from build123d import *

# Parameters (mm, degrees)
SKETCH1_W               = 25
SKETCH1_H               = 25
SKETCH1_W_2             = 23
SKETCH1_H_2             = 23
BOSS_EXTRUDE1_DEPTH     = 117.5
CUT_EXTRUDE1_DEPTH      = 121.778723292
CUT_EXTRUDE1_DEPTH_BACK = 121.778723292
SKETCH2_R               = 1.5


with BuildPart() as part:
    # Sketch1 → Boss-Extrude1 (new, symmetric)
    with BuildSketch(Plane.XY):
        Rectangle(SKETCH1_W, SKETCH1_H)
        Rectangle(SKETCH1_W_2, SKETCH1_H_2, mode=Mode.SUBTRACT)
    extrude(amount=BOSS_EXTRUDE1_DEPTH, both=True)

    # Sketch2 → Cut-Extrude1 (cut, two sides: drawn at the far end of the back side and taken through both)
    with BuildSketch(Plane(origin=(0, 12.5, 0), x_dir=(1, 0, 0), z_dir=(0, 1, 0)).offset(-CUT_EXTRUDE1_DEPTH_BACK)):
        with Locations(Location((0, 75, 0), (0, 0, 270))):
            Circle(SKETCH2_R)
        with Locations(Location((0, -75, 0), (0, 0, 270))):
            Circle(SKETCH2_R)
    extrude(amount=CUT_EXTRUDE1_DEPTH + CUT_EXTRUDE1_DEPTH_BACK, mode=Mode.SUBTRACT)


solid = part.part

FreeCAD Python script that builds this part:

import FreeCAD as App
import Part
import Sketcher

V = App.Vector

doc = App.newDocument("Part")
body = doc.addObject("PartDesign::Body", "Body")

# Sketch on XY plane
sketch1 = body.newObject("Sketcher::SketchObject", "Sketch")
sketch1.AttachmentSupport = (doc.getObject("XY_Plane"), [""])
sketch1.MapMode = "FlatFace"
sketch1.addGeometry(Part.LineSegment(V(-12, 12, 0), V(-12, -12, 0)), False)
sketch1.addGeometry(Part.LineSegment(V(-12, -12, 0), V(12, -12, 0)), False)
sketch1.addGeometry(Part.LineSegment(V(12, -12, 0), V(12, 12, 0)), False)
sketch1.addGeometry(Part.LineSegment(V(12, 12, 0), V(-12, 12, 0)), False)
sketch1.addGeometry(Part.LineSegment(V(12, -12, 0), V(-12, -12, 0)), False)
sketch1.addGeometry(Part.LineSegment(V(-12, -12, 0), V(-12, 12, 0)), False)
sketch1.addGeometry(Part.LineSegment(V(-12, 12, 0), V(12, 12, 0)), False)
sketch1.addGeometry(Part.LineSegment(V(12, 12, 0), V(12, -12, 0)), False)
sketch1.addConstraint(Sketcher.Constraint("Coincident", 0, 2, 1, 1))
sketch1.addConstraint(Sketcher.Constraint("Coincident", 1, 2, 2, 1))
sketch1.addConstraint(Sketcher.Constraint("Coincident", 2, 2, 3, 1))
sketch1.addConstraint(Sketcher.Constraint("Coincident", 3, 2, 0, 1))
sketch1.addConstraint(Sketcher.Constraint("Coincident", 4, 2, 5, 1))
sketch1.addConstraint(Sketcher.Constraint("Coincident", 5, 2, 6, 1))
sketch1.addConstraint(Sketcher.Constraint("Coincident", 6, 2, 7, 1))
sketch1.addConstraint(Sketcher.Constraint("Coincident", 7, 2, 4, 1))
sketch1.addConstraint(Sketcher.Constraint("Vertical", 0))
sketch1.addConstraint(Sketcher.Constraint("Horizontal", 1))
sketch1.addConstraint(Sketcher.Constraint("Vertical", 2))
sketch1.addConstraint(Sketcher.Constraint("Horizontal", 3))
sketch1.addConstraint(Sketcher.Constraint("Horizontal", 4))
sketch1.addConstraint(Sketcher.Constraint("Vertical", 5))
sketch1.addConstraint(Sketcher.Constraint("Horizontal", 6))
sketch1.addConstraint(Sketcher.Constraint("Vertical", 7))
sketch1.addConstraint(Sketcher.Constraint("Symmetric", 0, 2, 2, 2, -1, 1))
sketch1.addConstraint(Sketcher.Constraint("Symmetric", 4, 2, 6, 2, -1, 1))
sketch1.addConstraint(Sketcher.Constraint("Equal", 3, 0))
sketch1.addConstraint(Sketcher.Constraint("Equal", 6, 5))
sketch1.addConstraint(Sketcher.Constraint("DistanceX", 1, 1, 1, 2, 25.0))
sketch1.addConstraint(Sketcher.Constraint("DistanceX", 4, 2, 4, 1, 23.0))
pad1 = body.newObject("PartDesign::Pad", "Pad")
pad1.Profile = sketch1
pad1.Length = 235
pad1.Midplane = True

# Sketch on XZ plane
sketch2 = body.newObject("Sketcher::SketchObject", "Sketch001")
sketch2.AttachmentSupport = (doc.getObject("XZ_Plane"), [""])
sketch2.MapMode = "FlatFace"
sketch2.AttachmentOffset = App.Placement(V(0, 0, -12.5), App.Rotation())
sketch2.addGeometry(Part.Circle(V(0, -75, 0), V(0, 0, 1), 1.5), False)
sketch2.addGeometry(Part.Circle(V(0, 75, 0), V(0, 0, 1), 1.5), False)
sketch2.addConstraint(Sketcher.Constraint("Equal", 0, 1))
sketch2.addConstraint(Sketcher.Constraint("Symmetric", 0, 3, 1, 3, -1, 1))
sketch2.addConstraint(Sketcher.Constraint("PointOnObject", 0, 3, -2))
sketch2.addConstraint(Sketcher.Constraint("Diameter", 0, 3.0))
sketch2.addConstraint(Sketcher.Constraint("DistanceY", 0, 3, -1, 1, 75.0))
pocket1 = body.newObject("PartDesign::Pocket", "Pocket")
pocket1.Profile = sketch2
pocket1.Type = "ThroughAll"
pocket1.Midplane = True

doc.recompute()
